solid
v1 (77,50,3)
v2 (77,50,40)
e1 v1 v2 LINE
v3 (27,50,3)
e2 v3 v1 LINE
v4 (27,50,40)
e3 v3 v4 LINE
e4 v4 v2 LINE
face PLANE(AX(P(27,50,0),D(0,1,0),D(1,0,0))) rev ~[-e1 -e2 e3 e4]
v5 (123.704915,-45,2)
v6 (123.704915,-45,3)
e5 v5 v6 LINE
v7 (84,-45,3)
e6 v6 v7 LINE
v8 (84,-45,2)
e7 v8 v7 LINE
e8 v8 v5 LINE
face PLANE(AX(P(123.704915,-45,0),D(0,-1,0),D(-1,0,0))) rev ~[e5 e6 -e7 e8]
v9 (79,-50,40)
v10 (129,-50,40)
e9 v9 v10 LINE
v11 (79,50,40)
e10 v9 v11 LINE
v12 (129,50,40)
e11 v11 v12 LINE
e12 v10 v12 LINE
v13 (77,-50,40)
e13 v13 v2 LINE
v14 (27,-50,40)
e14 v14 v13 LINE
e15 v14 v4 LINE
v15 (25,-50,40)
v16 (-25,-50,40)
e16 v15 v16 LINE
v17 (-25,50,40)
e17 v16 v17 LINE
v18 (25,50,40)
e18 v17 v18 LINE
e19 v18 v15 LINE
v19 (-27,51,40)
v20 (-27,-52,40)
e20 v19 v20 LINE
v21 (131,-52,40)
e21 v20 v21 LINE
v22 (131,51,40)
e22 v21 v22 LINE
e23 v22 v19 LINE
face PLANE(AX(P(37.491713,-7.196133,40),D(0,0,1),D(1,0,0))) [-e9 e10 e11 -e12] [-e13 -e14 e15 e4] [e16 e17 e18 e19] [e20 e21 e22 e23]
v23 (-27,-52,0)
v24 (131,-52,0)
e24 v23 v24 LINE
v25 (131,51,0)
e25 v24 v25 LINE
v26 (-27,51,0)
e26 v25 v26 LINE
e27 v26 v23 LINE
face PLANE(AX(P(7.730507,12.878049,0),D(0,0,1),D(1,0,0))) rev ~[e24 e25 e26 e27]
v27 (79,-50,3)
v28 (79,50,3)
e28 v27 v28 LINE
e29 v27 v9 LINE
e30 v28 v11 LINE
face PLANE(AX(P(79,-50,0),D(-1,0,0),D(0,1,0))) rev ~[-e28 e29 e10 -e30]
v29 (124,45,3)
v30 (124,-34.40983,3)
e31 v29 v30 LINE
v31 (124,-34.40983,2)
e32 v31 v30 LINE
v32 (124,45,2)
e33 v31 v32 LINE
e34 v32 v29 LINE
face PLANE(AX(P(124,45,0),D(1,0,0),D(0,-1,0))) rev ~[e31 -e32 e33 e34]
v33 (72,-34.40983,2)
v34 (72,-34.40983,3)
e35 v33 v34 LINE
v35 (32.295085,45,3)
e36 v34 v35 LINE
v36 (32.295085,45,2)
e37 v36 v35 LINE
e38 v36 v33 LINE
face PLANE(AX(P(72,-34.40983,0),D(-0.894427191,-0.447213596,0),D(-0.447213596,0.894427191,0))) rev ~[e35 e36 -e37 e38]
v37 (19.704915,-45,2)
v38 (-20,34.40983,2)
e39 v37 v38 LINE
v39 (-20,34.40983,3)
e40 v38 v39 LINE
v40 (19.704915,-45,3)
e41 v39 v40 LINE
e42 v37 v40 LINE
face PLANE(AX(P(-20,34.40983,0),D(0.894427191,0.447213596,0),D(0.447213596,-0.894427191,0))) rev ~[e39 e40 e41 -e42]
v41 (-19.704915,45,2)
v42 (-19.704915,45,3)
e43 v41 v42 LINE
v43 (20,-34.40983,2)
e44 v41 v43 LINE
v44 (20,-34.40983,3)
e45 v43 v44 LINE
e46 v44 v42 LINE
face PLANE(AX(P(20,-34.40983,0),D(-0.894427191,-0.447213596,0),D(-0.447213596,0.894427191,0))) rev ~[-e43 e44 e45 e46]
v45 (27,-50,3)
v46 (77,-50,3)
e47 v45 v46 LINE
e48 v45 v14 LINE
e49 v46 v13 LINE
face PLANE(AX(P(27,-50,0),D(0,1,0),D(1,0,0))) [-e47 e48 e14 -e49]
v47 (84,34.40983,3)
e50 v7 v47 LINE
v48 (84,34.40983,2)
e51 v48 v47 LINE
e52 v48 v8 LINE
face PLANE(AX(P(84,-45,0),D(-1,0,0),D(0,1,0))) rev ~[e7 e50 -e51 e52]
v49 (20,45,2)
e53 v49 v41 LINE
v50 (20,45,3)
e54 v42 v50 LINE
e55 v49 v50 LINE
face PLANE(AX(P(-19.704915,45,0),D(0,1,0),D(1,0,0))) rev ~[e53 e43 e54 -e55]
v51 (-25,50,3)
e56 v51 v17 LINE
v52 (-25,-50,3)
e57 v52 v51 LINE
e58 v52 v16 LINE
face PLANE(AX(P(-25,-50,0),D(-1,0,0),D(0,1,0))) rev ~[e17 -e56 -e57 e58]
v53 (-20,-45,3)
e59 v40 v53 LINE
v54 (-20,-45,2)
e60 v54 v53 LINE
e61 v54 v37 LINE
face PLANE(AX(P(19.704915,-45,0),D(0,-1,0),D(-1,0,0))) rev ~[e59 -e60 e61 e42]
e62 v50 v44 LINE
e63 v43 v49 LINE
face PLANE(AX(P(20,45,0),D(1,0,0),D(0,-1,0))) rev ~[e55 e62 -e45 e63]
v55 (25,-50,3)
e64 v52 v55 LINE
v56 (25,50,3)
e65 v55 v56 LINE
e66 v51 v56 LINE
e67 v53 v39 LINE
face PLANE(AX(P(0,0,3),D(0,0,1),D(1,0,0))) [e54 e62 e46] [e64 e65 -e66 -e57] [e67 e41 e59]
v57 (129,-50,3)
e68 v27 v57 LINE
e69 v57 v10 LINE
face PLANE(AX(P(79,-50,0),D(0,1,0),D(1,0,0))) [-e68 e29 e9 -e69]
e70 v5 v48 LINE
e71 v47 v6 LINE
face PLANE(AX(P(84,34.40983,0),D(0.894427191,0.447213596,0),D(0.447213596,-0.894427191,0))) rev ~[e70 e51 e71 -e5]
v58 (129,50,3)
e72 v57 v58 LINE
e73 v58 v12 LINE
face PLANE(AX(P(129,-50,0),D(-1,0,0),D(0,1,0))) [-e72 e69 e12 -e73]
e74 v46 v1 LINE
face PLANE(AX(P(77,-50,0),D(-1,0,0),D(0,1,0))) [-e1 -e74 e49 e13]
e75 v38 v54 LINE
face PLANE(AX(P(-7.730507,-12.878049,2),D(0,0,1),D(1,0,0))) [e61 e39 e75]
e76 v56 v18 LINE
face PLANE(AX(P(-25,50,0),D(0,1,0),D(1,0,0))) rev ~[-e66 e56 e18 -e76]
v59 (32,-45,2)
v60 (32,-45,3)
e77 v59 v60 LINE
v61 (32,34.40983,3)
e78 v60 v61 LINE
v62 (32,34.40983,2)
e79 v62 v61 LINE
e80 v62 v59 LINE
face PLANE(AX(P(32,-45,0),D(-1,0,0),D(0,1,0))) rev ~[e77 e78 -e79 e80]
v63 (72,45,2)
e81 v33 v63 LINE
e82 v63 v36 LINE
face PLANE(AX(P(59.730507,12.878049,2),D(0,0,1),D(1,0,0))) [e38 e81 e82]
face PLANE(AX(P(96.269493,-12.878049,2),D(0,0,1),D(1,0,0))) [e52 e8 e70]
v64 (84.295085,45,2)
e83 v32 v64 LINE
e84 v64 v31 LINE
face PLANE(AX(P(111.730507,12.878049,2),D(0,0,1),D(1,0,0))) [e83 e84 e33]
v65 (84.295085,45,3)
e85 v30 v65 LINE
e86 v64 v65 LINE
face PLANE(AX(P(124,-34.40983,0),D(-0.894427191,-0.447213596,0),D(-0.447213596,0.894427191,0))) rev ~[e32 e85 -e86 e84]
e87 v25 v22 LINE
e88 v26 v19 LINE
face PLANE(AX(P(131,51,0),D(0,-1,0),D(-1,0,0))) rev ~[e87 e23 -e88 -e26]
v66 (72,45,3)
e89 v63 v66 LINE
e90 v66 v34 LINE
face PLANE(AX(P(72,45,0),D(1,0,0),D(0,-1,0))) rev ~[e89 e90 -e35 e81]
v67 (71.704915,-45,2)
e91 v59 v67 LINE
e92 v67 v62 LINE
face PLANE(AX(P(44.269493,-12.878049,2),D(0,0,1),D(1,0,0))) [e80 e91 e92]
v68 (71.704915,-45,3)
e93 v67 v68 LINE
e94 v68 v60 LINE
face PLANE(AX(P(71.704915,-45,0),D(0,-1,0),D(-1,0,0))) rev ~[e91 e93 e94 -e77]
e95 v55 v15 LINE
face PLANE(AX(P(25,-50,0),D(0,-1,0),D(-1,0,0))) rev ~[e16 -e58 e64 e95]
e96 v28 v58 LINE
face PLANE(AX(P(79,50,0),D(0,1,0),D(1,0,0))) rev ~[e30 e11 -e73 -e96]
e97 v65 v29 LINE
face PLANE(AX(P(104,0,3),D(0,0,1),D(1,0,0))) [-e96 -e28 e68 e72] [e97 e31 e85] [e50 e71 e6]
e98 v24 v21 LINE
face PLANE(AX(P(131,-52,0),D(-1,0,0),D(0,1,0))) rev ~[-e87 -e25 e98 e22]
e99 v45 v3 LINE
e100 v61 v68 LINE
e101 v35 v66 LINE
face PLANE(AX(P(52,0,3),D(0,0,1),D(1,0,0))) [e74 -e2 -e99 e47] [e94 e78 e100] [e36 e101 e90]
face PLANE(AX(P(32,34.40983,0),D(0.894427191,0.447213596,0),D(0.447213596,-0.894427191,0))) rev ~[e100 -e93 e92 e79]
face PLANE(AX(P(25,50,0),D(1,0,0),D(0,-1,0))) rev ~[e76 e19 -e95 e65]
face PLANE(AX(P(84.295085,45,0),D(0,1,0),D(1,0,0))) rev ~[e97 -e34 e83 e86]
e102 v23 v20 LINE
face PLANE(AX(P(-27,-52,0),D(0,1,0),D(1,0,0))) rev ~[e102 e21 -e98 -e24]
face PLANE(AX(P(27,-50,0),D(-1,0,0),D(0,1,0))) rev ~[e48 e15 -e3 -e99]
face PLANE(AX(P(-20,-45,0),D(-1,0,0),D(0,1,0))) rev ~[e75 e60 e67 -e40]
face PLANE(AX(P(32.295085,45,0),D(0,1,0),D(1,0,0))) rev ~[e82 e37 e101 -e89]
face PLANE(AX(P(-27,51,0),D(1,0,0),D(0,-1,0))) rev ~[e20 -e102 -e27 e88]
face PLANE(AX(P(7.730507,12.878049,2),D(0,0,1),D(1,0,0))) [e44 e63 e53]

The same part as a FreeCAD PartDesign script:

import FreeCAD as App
import Part
import Sketcher
Q = App.Units.Quantity


def add_polygon(sketch, points):
    """Adds a closed chain of lines whose ends are joined by coincident constraints."""
    first, n = sketch.GeometryCount, len(points)
    for a, b in zip(points, points[1:] + points[:1]):
        sketch.addGeometry(Part.LineSegment(App.Vector(*a, 0), App.Vector(*b, 0)), False)
    for i in range(n):
        sketch.addConstraint(Sketcher.Constraint("Coincident", first + i, 2, first + (i + 1) % n, 1))

doc = App.newDocument("Part")
params = doc.addObject("Spreadsheet::Sheet", "Params")
for row, (alias, value) in enumerate([
    ("sketch1_width", "158 mm"),
    ("sketch1_width2", "50 mm"),
    ("sketch1_height", "103 mm"),
    ("sketch1_height2", "100 mm"),
    ("pad1_length", "40 mm"),
    ("sketch2_width", "50 mm"),
    ("sketch2_height", "100 mm"),
    ("pad2_length", "3 mm"),
    ("pad3_length", "2 mm"),
], start=1):
    params.set(f"A{row}", alias)
    params.set(f"B{row}", "=" + value)
    params.setAlias(f"B{row}", alias)

body = doc.addObject("PartDesign::Body", "Body")

sketch1 = body.newObject("Sketcher::SketchObject", "Sketch")
sketch1.AttachmentSupport = (doc.getObject("XY_Plane"), [""])
sketch1.MapMode = "FlatFace"
add_polygon(sketch1, [(-27, 51), (-27, -52), (131, -52), (131, 51)])
add_polygon(sketch1, [(-25, -50), (-25, 50), (25, 50), (25, -50)])
add_polygon(sketch1, [(77, -50), (27, -50), (27, 50), (77, 50)])
add_polygon(sketch1, [(129, -50), (79, -50), (79, 50), (129, 50)])
sketch1.addConstraint([
    Sketcher.Constraint("Vertical", 0),
    Sketcher.Constraint("Horizontal", 1),
    Sketcher.Constraint("Vertical", 2),
    Sketcher.Constraint("Horizontal", 3),
    Sketcher.Constraint("Vertical", 4),
    Sketcher.Constraint("Horizontal", 5),
    Sketcher.Constraint("Vertical", 6),
    Sketcher.Constraint("Horizontal", 7),
    Sketcher.Constraint("Horizontal", 8),
    Sketcher.Constraint("Vertical", 9),
    Sketcher.Constraint("Horizontal", 10),
    Sketcher.Constraint("Vertical", 11),
    Sketcher.Constraint("Horizontal", 12),
    Sketcher.Constraint("Vertical", 13),
    Sketcher.Constraint("Horizontal", 14),
    Sketcher.Constraint("Vertical", 15),
    Sketcher.Constraint("Symmetric", 4, 2, 6, 2, -1, 1),
    Sketcher.Constraint("Horizontal", 7, 2, 8, 2),
    Sketcher.Constraint("Horizontal", 5, 2, 9, 2),
    Sketcher.Constraint("Horizontal", 11, 2, 12, 2),
    Sketcher.Constraint("Horizontal", 10, 2, 13, 2),
    Sketcher.Constraint("Equal", 7, 8),
    Sketcher.Constraint("Equal", 10, 12),
    Sketcher.Constraint("DistanceX", 1, 1, 1, 2, Q("158 mm")),
    Sketcher.Constraint("DistanceX", 5, 1, 5, 2, Q("50 mm")),
    Sketcher.Constraint("DistanceY", 0, 2, 0, 1, Q("103 mm")),
    Sketcher.Constraint("DistanceY", 4, 1, 4, 2, Q("100 mm")),
    Sketcher.Constraint("DistanceX", 0, 2, -1, 1, Q("27 mm")),
    Sketcher.Constraint("DistanceY", 0, 2, -1, 1, Q("52 mm")),
    Sketcher.Constraint("DistanceX", -1, 1, 8, 2, Q("27 mm")),
    Sketcher.Constraint("DistanceX", -1, 1, 12, 2, Q("79 mm")),
])
sketch1.setExpression("Constraints[39]", "Params.sketch1_width")
sketch1.setExpression("Constraints[40]", "Params.sketch1_width2")
sketch1.setExpression("Constraints[41]", "Params.sketch1_height")
sketch1.setExpression("Constraints[42]", "Params.sketch1_height2")
pad1 = body.newObject("PartDesign::Pad", "Pad")
pad1.Profile = sketch1
pad1.setExpression("Length", "Params.pad1_length")

sketch2 = body.newObject("Sketcher::SketchObject", "Sketch001")
sketch2.AttachmentSupport = (doc.getObject("XY_Plane"), [""])
sketch2.MapMode = "FlatFace"
add_polygon(sketch2, [(-25, 50), (-25, -50), (25, -50), (25, 50)])
add_polygon(sketch2, [(20, -45), (-20, -45), (-20, 34)])
add_polygon(sketch2, [(20, 45), (20, -34), (-20, 45)])
add_polygon(sketch2, [(27, 50), (27, -50), (77, -50), (77, 50)])
add_polygon(sketch2, [(32, -45), (32, 34), (72, -45)])
add_polygon(sketch2, [(72, 45), (72, -34), (32, 45)])
add_polygon(sketch2, [(79, 50), (79, -50), (129, -50), (129, 50)])
add_polygon(sketch2, [(84, -45), (84, 34), (124, -45)])
add_polygon(sketch2, [(124, 45), (124, -34), (84, 45)])
sketch2.addConstraint([
    Sketcher.Constraint("Vertical", 0),
    Sketcher.Constraint("Horizontal", 1),
    Sketcher.Constraint("Vertical", 2),
    Sketcher.Constraint("Horizontal", 3),
    Sketcher.Constraint("Horizontal", 4),
    Sketcher.Constraint("Vertical", 5),
    Sketcher.Constraint("Vertical", 7),
    Sketcher.Constraint("Horizontal", 9),
    Sketcher.Constraint("Vertical", 10),
    Sketcher.Constraint("Horizontal", 11),
    Sketcher.Constraint("Vertical", 12),
    Sketcher.Constraint("Horizontal", 13),
    Sketcher.Constraint("Vertical", 14),
    Sketcher.Constraint("Horizontal", 16),
    Sketcher.Constraint("Vertical", 17),
    Sketcher.Constraint("Horizontal", 19),
    Sketcher.Constraint("Vertical", 20),
    Sketcher.Constraint("Horizontal", 21),
    Sketcher.Constraint("Vertical", 22),
    Sketcher.Constraint("Horizontal", 23),
    Sketcher.Constraint("Vertical", 24),
    Sketcher.Constraint("Horizontal", 26),
    Sketcher.Constraint("Vertical", 27),
    Sketcher.Constraint("Horizontal", 29),
    Sketcher.Constraint("Symmetric", 0, 2, 2, 2, -1, 1),
    Sketcher.Constraint("Symmetric", 5, 2, 7, 2, -1, 1),
    Sketcher.Constraint("Symmetric", 6, 2, 8, 2, -1, 1),
    Sketcher.Constraint("Parallel", 8, 15),
    Sketcher.Constraint("Parallel", 15, 18),
    Sketcher.Constraint("Parallel", 18, 25),
    Sketcher.Constraint("Parallel", 25, 28),
    Sketcher.Constraint("Horizontal", 1, 2, 10, 2),
    Sketcher.Constraint("Horizontal", 3, 2, 12, 2),
    Sketcher.Constraint("Horizontal", 5, 2, 14, 2),
    Sketcher.Constraint("Horizontal", 6, 2, 15, 2),
    Sketcher.Constraint("Horizontal", 7, 2, 17, 2),
    Sketcher.Constraint("Horizontal", 9, 2, 18, 2),
    Sketcher.Constraint("Horizontal", 11, 2, 20, 2),
    Sketcher.Constraint("Horizontal", 13, 2, 22, 2),
    Sketcher.Constraint("Horizontal", 14, 2, 24, 2),
    Sketcher.Constraint("Horizontal", 16, 2, 25, 2),
    Sketcher.Constraint("Horizontal", 17, 2, 27, 2),
    Sketcher.Constraint("Horizontal", 19, 2, 28, 2),
    Sketcher.Constraint("Equal", 3, 11),
    Sketcher.Constraint("Equal", 13, 21),
    Sketcher.Constraint("DistanceX", 1, 1, 1, 2, Q("50 mm")),
    Sketcher.Constraint("DistanceY", 0, 2, 0, 1, Q("100 mm")),
    Sketcher.Constraint("DistanceX", 4, 2, -1, 1, Q("20 mm")),
    Sketcher.Constraint("DistanceY", 4, 2, -1, 1, Q("45 mm")),
    Sketcher.Constraint("DistanceX", -1, 1, 10, 2, Q("27 mm")),
    Sketcher.Constraint("DistanceX", -1, 1, 14, 2, Q("32 mm")),
    Sketcher.Constraint("DistanceX", -1, 1, 17, 2, Q("72 mm")),
    Sketcher.Constraint("DistanceX", -1, 1, 20, 2, Q("79 mm")),
    Sketcher.Constraint("DistanceX", -1, 1, 24, 2, Q("84 mm")),
    Sketcher.Constraint("DistanceX", -1, 1, 27, 2, Q("124 mm")),
    Sketcher.Constraint("DistanceY", 5, 1, 5, 2, Q("79.40983 mm")),
    Sketcher.Constraint("Distance", 6, Q("88.782889 mm")),
])
sketch2.setExpression("Constraints[75]", "Params.sketch2_width")
sketch2.setExpression("Constraints[76]", "Params.sketch2_height")
pad2 = body.newObject("PartDesign::Pad", "Pad001")
pad2.Profile = sketch2
pad2.setExpression("Length", "Params.pad2_length")

sketch3 = body.newObject("Sketcher::SketchObject", "Sketch002")
sketch3.AttachmentSupport = (doc.getObject("XY_Plane"), [""])
sketch3.MapMode = "FlatFace"
add_polygon(sketch3, [(20, 45), (-20, 45), (20, -34)])
add_polygon(sketch3, [(20, -45), (-20, 34), (-20, -45)])
add_polygon(sketch3, [(32, -45), (72, -45), (32, 34)])
add_polygon(sketch3, [(72, 45), (32, 45), (72, -34)])
add_polygon(sketch3, [(124, 45), (84, 45), (124, -34)])
add_polygon(sketch3, [(84, -45), (124, -45), (84, 34)])
sketch3.addConstraint([
    Sketcher.Constraint("Horizontal", 0),
    Sketcher.Constraint("Vertical", 2),
    Sketcher.Constraint("Vertical", 4),
    Sketcher.Constraint("Horizontal", 5),
    Sketcher.Constraint("Horizontal", 6),
    Sketcher.Constraint("Vertical", 8),
    Sketcher.Constraint("Horizontal", 9),
    Sketcher.Constraint("Vertical", 11),
    Sketcher.Constraint("Horizontal", 12),
    Sketcher.Constraint("Vertical", 14),
    Sketcher.Constraint("Horizontal", 15),
    Sketcher.Constraint("Vertical", 17),
    Sketcher.Constraint("Symmetric", 1, 2, 3, 2, -1, 1),
    Sketcher.Constraint("Symmetric", 0, 2, 5, 2, -1, 1),
    Sketcher.Constraint("Parallel", 3, 7),
    Sketcher.Constraint("Parallel", 7, 10),
    Sketcher.Constraint("Parallel", 10, 13),
    Sketcher.Constraint("Parallel", 13, 16),
    Sketcher.Constraint("Horizontal", 5, 2, 6, 2),
    Sketcher.Constraint("Horizontal", 3, 2, 7, 2),
    Sketcher.Constraint("Horizontal", 2, 2, 9, 2),
    Sketcher.Constraint("Horizontal", 1, 2, 10, 2),
    Sketcher.Constraint("Horizontal", 11, 2, 12, 2),
    Sketcher.Constraint("Horizontal", 10, 2, 13, 2),
    Sketcher.Constraint("Horizontal", 8, 2, 15, 2),
    Sketcher.Constraint("Horizontal", 7, 2, 16, 2),
    Sketcher.Constraint("DistanceY", -1, 1, 0, 2, Q("45 mm")),
    Sketcher.Constraint("DistanceX", -1, 1, 1, 2, Q("20 mm")),
    Sketcher.Constraint("DistanceX", -1, 1, 7, 2, Q("32 mm")),
    Sketcher.Constraint("DistanceX", -1, 1, 10, 2, Q("72 mm")),
    Sketcher.Constraint("DistanceX", -1, 1, 13, 2, Q("124 mm")),
    Sketcher.Constraint("DistanceX", -1, 1, 16, 2, Q("84 mm")),
    Sketcher.Constraint("DistanceY", 2, 1, 2, 2, Q("79.40983 mm")),
    Sketcher.Constraint("Distance", 1, Q("88.782889 mm")),
])
pad3 = body.newObject("PartDesign::Pad", "Pad002")
pad3.Profile = sketch3
pad3.setExpression("Length", "Params.pad3_length")

doc.recompute()
